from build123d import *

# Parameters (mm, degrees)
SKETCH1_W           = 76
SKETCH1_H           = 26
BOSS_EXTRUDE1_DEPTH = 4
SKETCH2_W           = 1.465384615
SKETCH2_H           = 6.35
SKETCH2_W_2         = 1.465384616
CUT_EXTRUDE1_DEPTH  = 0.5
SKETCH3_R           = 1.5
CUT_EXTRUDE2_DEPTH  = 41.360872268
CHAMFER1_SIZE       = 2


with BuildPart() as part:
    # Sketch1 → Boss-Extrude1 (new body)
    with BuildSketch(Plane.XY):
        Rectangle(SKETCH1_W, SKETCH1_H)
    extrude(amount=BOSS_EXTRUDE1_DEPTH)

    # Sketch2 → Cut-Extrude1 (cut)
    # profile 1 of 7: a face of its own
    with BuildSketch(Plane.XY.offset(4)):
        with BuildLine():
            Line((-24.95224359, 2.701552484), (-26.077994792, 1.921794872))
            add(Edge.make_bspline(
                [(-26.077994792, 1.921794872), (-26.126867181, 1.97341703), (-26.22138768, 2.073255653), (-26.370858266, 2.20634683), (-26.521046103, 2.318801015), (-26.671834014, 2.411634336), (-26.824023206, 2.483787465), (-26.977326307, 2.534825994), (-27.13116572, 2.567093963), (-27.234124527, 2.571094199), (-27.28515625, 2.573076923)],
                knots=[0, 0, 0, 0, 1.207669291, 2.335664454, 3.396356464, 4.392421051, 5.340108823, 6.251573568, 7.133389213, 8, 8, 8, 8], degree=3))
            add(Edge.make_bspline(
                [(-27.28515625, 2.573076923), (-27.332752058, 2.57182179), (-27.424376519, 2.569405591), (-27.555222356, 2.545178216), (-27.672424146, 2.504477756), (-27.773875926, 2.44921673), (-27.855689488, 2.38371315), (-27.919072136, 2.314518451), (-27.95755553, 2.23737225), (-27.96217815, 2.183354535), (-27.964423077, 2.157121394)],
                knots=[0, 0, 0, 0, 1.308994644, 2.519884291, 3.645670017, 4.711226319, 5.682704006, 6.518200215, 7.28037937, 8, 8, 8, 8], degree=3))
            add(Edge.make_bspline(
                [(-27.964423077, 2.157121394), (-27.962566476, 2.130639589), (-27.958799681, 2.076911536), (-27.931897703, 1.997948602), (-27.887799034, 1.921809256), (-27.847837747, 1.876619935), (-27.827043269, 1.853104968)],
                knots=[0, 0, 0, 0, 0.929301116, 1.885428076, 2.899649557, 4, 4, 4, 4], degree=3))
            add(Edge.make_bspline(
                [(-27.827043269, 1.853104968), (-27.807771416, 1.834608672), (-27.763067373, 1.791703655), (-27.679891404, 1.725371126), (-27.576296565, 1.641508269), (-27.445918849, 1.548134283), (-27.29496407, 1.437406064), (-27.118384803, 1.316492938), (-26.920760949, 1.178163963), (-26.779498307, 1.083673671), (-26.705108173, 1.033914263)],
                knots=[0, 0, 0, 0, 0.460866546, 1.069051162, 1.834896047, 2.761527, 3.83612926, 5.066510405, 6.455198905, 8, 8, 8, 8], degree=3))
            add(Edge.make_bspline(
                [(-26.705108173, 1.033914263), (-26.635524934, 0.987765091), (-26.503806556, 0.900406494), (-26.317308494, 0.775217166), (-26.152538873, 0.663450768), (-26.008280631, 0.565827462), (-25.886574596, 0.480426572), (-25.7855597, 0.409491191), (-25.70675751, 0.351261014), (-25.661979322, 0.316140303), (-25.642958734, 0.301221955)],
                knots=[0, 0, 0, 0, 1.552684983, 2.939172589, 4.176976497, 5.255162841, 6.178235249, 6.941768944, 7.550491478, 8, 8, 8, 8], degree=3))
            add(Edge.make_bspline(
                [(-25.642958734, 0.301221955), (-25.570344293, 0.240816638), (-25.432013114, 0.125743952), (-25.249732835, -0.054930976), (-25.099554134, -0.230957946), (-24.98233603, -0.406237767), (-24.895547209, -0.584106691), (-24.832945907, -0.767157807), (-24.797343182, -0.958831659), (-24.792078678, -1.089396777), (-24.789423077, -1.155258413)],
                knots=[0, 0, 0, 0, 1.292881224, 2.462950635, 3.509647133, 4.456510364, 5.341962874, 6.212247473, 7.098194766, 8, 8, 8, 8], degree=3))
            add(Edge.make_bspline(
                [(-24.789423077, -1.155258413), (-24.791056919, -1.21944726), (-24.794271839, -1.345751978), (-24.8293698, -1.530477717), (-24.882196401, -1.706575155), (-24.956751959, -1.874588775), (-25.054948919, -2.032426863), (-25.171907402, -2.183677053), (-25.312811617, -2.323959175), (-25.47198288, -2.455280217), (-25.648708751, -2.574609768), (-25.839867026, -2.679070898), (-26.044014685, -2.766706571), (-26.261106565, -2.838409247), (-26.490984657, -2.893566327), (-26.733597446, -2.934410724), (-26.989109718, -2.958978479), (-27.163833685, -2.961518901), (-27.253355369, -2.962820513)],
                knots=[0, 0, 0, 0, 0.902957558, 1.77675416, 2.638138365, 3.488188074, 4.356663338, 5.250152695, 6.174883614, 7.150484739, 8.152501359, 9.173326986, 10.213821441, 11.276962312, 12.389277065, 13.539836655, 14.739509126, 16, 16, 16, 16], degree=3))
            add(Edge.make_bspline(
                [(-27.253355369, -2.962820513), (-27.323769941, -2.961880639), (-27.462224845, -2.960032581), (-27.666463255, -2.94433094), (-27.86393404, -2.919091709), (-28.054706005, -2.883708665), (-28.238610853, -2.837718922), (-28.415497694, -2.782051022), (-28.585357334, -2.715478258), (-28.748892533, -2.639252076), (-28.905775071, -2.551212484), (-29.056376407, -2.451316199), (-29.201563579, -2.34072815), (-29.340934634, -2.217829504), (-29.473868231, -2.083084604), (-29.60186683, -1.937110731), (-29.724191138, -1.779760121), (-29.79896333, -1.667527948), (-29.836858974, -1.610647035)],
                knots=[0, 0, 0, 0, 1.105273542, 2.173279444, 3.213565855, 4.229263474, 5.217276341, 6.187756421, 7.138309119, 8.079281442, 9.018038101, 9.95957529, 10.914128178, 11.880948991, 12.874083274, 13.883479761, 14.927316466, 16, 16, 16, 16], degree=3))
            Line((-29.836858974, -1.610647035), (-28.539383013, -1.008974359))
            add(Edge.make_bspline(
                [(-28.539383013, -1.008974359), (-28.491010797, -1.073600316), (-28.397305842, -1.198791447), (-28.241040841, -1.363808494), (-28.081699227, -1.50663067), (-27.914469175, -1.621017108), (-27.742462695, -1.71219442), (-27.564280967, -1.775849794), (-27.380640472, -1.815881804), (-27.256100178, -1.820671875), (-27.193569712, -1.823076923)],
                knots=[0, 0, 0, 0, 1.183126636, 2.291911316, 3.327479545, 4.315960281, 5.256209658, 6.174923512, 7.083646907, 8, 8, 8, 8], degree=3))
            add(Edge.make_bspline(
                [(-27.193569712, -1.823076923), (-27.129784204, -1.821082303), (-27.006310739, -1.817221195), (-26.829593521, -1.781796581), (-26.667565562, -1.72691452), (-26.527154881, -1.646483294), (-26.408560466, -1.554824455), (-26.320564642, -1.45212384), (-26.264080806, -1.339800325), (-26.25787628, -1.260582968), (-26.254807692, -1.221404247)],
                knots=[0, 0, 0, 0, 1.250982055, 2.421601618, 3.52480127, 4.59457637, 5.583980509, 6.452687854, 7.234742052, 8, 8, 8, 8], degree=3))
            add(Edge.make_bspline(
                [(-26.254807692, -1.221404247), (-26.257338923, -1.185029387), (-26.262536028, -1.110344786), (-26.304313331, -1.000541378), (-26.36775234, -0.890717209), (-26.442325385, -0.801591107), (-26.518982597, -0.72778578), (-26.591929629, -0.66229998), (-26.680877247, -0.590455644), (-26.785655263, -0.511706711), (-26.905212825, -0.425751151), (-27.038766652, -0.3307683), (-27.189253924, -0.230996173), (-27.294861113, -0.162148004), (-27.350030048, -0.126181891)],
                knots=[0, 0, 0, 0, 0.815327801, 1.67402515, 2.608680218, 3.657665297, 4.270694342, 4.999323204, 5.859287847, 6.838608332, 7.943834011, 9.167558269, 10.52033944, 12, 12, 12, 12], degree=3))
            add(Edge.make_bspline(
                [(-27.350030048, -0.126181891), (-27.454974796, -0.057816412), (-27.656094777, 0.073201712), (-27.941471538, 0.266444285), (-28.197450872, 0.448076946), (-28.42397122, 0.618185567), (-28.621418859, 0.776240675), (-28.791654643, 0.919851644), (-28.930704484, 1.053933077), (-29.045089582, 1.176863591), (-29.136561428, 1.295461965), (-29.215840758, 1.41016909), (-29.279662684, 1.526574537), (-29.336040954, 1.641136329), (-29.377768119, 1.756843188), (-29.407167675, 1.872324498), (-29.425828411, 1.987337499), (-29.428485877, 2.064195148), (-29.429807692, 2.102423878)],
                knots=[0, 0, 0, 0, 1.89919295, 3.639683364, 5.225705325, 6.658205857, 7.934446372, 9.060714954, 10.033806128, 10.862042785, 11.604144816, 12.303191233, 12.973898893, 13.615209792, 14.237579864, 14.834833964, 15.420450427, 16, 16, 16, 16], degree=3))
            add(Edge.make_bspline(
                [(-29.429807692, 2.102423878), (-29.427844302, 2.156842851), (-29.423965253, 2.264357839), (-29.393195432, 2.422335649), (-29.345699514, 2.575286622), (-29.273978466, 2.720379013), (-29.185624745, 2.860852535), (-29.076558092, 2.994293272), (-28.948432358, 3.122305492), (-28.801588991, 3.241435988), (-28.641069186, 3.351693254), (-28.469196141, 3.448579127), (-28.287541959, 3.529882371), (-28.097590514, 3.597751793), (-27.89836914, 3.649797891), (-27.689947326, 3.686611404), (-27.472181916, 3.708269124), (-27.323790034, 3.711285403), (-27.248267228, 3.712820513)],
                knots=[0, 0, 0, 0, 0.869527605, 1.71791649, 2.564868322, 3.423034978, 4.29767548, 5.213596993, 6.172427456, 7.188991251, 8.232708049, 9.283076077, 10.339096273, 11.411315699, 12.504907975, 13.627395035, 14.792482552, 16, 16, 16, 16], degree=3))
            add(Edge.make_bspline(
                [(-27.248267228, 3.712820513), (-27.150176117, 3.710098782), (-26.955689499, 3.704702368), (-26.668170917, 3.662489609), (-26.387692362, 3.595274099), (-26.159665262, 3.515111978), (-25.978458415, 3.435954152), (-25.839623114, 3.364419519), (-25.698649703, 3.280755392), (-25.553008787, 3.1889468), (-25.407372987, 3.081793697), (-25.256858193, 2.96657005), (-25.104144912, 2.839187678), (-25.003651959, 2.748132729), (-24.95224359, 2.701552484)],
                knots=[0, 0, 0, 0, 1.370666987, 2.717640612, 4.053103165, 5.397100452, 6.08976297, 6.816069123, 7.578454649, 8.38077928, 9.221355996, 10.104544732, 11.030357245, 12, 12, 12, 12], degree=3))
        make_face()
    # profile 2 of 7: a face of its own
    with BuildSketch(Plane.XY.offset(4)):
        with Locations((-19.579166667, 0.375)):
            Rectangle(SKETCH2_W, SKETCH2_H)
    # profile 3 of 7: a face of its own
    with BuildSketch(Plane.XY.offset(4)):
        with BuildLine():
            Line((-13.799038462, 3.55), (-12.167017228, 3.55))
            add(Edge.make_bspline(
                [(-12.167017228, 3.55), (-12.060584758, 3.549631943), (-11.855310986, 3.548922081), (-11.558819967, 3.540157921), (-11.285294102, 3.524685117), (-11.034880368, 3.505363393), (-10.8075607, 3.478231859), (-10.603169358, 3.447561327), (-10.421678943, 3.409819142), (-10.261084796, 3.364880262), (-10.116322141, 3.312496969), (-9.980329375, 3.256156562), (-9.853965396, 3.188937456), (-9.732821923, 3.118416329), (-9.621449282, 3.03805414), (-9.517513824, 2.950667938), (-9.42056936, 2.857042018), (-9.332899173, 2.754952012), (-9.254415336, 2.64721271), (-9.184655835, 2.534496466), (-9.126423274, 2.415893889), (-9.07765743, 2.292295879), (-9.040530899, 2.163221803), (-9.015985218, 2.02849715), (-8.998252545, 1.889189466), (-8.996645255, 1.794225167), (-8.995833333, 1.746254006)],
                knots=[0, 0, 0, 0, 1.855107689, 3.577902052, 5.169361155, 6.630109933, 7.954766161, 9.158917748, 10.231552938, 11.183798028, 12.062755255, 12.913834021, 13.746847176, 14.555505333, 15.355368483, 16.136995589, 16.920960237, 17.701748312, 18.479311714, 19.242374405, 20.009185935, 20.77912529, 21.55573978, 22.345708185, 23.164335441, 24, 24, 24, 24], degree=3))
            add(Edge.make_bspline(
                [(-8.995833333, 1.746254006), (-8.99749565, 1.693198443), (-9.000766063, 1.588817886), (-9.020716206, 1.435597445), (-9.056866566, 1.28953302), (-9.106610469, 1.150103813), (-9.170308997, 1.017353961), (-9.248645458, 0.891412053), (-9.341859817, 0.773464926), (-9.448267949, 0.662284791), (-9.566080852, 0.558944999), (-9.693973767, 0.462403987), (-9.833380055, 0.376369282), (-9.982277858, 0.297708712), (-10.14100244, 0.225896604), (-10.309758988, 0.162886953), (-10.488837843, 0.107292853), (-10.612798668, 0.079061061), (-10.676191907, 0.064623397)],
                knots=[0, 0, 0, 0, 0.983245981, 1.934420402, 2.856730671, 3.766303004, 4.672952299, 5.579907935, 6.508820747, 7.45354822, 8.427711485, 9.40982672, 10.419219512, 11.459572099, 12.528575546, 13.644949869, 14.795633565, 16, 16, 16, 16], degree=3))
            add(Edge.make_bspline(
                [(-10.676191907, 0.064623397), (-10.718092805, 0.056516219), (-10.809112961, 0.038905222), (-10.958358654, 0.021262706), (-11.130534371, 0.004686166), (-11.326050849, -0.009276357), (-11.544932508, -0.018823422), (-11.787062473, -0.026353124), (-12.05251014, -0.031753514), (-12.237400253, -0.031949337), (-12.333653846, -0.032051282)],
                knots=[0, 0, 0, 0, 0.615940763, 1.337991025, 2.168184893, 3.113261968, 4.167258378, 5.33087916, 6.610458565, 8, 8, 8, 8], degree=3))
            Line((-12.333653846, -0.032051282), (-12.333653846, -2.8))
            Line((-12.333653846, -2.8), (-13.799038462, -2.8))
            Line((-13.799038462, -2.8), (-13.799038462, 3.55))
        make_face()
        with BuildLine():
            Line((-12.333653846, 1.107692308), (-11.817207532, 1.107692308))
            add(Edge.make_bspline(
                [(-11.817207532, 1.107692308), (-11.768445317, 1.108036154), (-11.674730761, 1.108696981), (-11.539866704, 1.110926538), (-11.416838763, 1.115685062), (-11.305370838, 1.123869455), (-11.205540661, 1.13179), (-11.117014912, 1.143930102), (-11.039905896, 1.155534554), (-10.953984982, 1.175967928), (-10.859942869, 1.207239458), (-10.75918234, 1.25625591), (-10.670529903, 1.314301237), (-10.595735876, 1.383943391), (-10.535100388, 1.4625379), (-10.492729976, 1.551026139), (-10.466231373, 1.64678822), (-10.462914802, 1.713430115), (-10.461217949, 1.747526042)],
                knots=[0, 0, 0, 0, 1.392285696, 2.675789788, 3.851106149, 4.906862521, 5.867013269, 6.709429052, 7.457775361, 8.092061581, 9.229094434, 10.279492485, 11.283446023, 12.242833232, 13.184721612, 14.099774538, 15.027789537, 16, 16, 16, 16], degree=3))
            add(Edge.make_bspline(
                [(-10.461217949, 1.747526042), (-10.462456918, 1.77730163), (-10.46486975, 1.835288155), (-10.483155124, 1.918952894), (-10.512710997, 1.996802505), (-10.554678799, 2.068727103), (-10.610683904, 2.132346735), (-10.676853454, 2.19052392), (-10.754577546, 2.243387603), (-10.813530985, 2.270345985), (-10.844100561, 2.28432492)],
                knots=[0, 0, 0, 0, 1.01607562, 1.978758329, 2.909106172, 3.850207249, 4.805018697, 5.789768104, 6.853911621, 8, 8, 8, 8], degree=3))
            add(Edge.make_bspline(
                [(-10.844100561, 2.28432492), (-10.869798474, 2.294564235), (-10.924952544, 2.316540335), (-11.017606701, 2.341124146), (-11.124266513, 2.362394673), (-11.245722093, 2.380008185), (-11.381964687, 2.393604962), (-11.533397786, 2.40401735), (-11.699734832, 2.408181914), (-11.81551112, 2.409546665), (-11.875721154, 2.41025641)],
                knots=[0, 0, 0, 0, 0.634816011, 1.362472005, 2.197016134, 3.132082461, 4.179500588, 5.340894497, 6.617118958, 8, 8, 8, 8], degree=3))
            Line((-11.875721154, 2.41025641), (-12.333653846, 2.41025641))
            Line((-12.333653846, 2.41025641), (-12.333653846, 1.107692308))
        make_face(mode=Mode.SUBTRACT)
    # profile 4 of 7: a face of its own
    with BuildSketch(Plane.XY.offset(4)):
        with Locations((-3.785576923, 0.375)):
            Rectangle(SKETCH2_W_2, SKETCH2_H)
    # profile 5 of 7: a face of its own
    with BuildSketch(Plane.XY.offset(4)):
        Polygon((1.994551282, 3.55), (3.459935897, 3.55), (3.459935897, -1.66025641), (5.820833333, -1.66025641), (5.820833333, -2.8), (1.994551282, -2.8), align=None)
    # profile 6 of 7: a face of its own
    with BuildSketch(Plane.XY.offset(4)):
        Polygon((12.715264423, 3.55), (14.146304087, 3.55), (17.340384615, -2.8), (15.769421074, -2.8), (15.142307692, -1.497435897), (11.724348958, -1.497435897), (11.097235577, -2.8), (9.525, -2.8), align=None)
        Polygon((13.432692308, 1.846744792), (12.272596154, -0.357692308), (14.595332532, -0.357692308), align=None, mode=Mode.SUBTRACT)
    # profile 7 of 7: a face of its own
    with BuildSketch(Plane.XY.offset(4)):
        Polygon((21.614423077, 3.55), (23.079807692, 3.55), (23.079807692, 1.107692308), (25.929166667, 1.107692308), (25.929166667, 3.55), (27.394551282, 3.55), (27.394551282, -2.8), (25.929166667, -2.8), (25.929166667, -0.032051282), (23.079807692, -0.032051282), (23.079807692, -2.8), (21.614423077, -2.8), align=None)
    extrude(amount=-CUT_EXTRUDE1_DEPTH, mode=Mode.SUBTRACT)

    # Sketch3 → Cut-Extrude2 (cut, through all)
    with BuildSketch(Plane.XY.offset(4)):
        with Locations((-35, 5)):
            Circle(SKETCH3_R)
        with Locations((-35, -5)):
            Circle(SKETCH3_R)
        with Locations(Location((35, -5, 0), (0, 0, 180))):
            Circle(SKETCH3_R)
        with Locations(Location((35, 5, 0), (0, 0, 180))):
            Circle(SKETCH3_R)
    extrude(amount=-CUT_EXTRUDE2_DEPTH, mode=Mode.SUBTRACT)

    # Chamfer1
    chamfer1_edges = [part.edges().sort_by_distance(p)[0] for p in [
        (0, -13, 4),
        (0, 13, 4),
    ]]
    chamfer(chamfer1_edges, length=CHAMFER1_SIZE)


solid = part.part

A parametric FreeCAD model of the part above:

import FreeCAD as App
import Part
import Sketcher
from FreeCAD import Vector


def edges_at(feature, points):
    """Names of the edges that pass closest to the given points."""
    edges = feature.Shape.Edges
    near = lambda p: min(range(len(edges)), key=lambda i: edges[i].distToShape(Part.Vertex(*p))[0])
    return sorted({f"Edge{near(p) + 1}" for p in points})

doc = App.newDocument("Part")
body = doc.addObject("PartDesign::Body", "Body")

sketch1 = body.newObject("Sketcher::SketchObject", "Sketch")
sketch1.AttachmentSupport = (doc.getObject("XY_Plane"), [""])
sketch1.MapMode = "FlatFace"
sketch1.addGeometry([
    Part.LineSegment(Vector(-38, 13, 0), Vector(-38, -13, 0)),
    Part.LineSegment(Vector(-38, -13, 0), Vector(38, -13, 0)),
    Part.LineSegment(Vector(38, -13, 0), Vector(38, 13, 0)),
    Part.LineSegment(Vector(38, 13, 0), Vector(-38, 13, 0)),
], False)
sketch1.addConstraint([
    Sketcher.Constraint("Coincident", 0, 2, 1, 1),
    Sketcher.Constraint("Coincident", 1, 2, 2, 1),
    Sketcher.Constraint("Coincident", 2, 2, 3, 1),
    Sketcher.Constraint("Coincident", 3, 2, 0, 1),
    Sketcher.Constraint("Vertical", 0),
    Sketcher.Constraint("Horizontal", 1),
    Sketcher.Constraint("Vertical", 2),
    Sketcher.Constraint("Horizontal", 3),
    Sketcher.Constraint("Symmetric", 0, 2, 2, 2, -1, 1),
    Sketcher.Constraint("DistanceX", 1, 1, 1, 2, 76.0),
    Sketcher.Constraint("DistanceY", 0, 2, 0, 1, 26.0),
])
pad1 = body.newObject("PartDesign::Pad", "Pad")
pad1.Profile = sketch1
pad1.Length = 4

sketch2 = body.newObject("Sketcher::SketchObject", "Sketch001")
sketch2.AttachmentSupport = (doc.getObject("XY_Plane"), [""])
sketch2.MapMode = "FlatFace"
sketch2.AttachmentOffset = App.Placement(Vector(0, 0, 4), App.Rotation())
sketch2.addGeometry([
    Part.LineSegment(Vector(-26.077995, 1.921795, 0), Vector(-24.952244, 2.701552, 0)),
    Part.BSplineCurve([Vector(-27.248267, 3.712821, 0), Vector(-27.150176, 3.710099, 0), Vector(-26.955689, 3.704702, 0), Vector(-26.668171, 3.66249, 0), Vector(-26.387692, 3.595274, 0), Vector(-26.159665, 3.515112, 0), Vector(-25.978458, 3.435954, 0), Vector(-25.839623, 3.36442, 0), Vector(-25.69865, 3.280755, 0), Vector(-25.553009, 3.188947, 0), Vector(-25.407373, 3.081794, 0), Vector(-25.256858, 2.96657, 0), Vector(-25.104145, 2.839188, 0), Vector(-25.003652, 2.748133, 0), Vector(-24.952244, 2.701552, 0)], [4, 1, 1, 1, 1, 1, 1, 1, 1, 1, 1, 1, 4], [0, 1.370666987, 2.717640612, 4.053103165, 5.397100452, 6.08976297, 6.816069123, 7.578454649, 8.38077928, 9.221355996, 10.104544732, 11.030357245, 12], False, 3, [1, 1, 1, 1, 1, 1, 1, 1, 1, 1, 1, 1, 1, 1, 1], False),
    Part.BSplineCurve([Vector(-29.429808, 2.102424, 0), Vector(-29.427844, 2.156843, 0), Vector(-29.423965, 2.264358, 0), Vector(-29.393195, 2.422336, 0), Vector(-29.3457, 2.575287, 0), Vector(-29.273978, 2.720379, 0), Vector(-29.185625, 2.860853, 0), Vector(-29.076558, 2.994293, 0), Vector(-28.948432, 3.122305, 0), Vector(-28.801589, 3.241436, 0), Vector(-28.641069, 3.351693, 0), Vector(-28.469196, 3.448579, 0), Vector(-28.287542, 3.529882, 0), Vector(-28.097591, 3.597752, 0), Vector(-27.898369, 3.649798, 0), Vector(-27.689947, 3.686611, 0), Vector(-27.472182, 3.708269, 0), Vector(-27.32379, 3.711285, 0), Vector(-27.248267, 3.712821, 0)], [4, 1, 1, 1, 1, 1, 1, 1, 1, 1, 1, 1, 1, 1, 1, 1, 4], [0, 0.869527605, 1.71791649, 2.564868322, 3.423034978, 4.29767548, 5.213596993, 6.172427456, 7.188991251, 8.232708049, 9.283076077, 10.339096273, 11.411315699, 12.504907975, 13.627395035, 14.792482552, 16], False, 3, [1, 1, 1, 1, 1, 1, 1, 1, 1, 1, 1, 1, 1, 1, 1, 1, 1, 1, 1], False),
    Part.BSplineCurve([Vector(-27.35003, -0.126182, 0), Vector(-27.454975, -0.057816, 0), Vector(-27.656095, 0.073202, 0), Vector(-27.941472, 0.266444, 0), Vector(-28.197451, 0.448077, 0), Vector(-28.423971, 0.618186, 0), Vector(-28.621419, 0.776241, 0), Vector(-28.791655, 0.919852, 0), Vector(-28.930704, 1.053933, 0), Vector(-29.04509, 1.176864, 0), Vector(-29.136561, 1.295462, 0), Vector(-29.215841, 1.410169, 0), Vector(-29.279663, 1.526575, 0), Vector(-29.336041, 1.641136, 0), Vector(-29.377768, 1.756843, 0), Vector(-29.407168, 1.872324, 0), Vector(-29.425828, 1.987337, 0), Vector(-29.428486, 2.064195, 0), Vector(-29.429808, 2.102424, 0)], [4, 1, 1, 1, 1, 1, 1, 1, 1, 1, 1, 1, 1, 1, 1, 1, 4], [0, 1.89919295, 3.639683364, 5.225705325, 6.658205857, 7.934446372, 9.060714954, 10.033806128, 10.862042785, 11.604144816, 12.303191233, 12.973898893, 13.615209792, 14.237579864, 14.834833964, 15.420450427, 16], False, 3, [1, 1, 1, 1, 1, 1, 1, 1, 1, 1, 1, 1, 1, 1, 1, 1, 1, 1, 1], False),
    Part.BSplineCurve([Vector(-26.254808, -1.221404, 0), Vector(-26.257339, -1.185029, 0), Vector(-26.262536, -1.110345, 0), Vector(-26.304313, -1.000541, 0), Vector(-26.367752, -0.890717, 0), Vector(-26.442325, -0.801591, 0), Vector(-26.518983, -0.727786, 0), Vector(-26.59193, -0.6623, 0), Vector(-26.680877, -0.590456, 0), Vector(-26.785655, -0.511707, 0), Vector(-26.905213, -0.425751, 0), Vector(-27.038767, -0.330768, 0), Vector(-27.189254, -0.230996, 0), Vector(-27.294861, -0.162148, 0), Vector(-27.35003, -0.126182, 0)], [4, 1, 1, 1, 1, 1, 1, 1, 1, 1, 1, 1, 4], [0, 0.815327801, 1.67402515, 2.608680218, 3.657665297, 4.270694342, 4.999323204, 5.859287847, 6.838608332, 7.943834011, 9.167558269, 10.52033944, 12], False, 3, [1, 1, 1, 1, 1, 1, 1, 1, 1, 1, 1, 1, 1, 1, 1], False),
    Part.BSplineCurve([Vector(-27.19357, -1.823077, 0), Vector(-27.129784, -1.821082, 0), Vector(-27.006311, -1.817221, 0), Vector(-26.829594, -1.781797, 0), Vector(-26.667566, -1.726915, 0), Vector(-26.527155, -1.646483, 0), Vector(-26.40856, -1.554824, 0), Vector(-26.320565, -1.452124, 0), Vector(-26.264081, -1.3398, 0), Vector(-26.257876, -1.260583, 0), Vector(-26.254808, -1.221404, 0)], [4, 1, 1, 1, 1, 1, 1, 1, 4], [0, 1.250982055, 2.421601618, 3.52480127, 4.59457637, 5.583980509, 6.452687854, 7.234742052, 8], False, 3, [1, 1, 1, 1, 1, 1, 1, 1, 1, 1, 1], False),
    Part.BSplineCurve([Vector(-28.539383, -1.008974, 0), Vector(-28.491011, -1.0736, 0), Vector(-28.397306, -1.198791, 0), Vector(-28.241041, -1.363808, 0), Vector(-28.081699, -1.506631, 0), Vector(-27.914469, -1.621017, 0), Vector(-27.742463, -1.712194, 0), Vector(-27.564281, -1.77585, 0), Vector(-27.38064, -1.815882, 0), Vector(-27.2561, -1.820672, 0), Vector(-27.19357, -1.823077, 0)], [4, 1, 1, 1, 1, 1, 1, 1, 4], [0, 1.183126636, 2.291911316, 3.327479545, 4.315960281, 5.256209658, 6.174923512, 7.083646907, 8], False, 3, [1, 1, 1, 1, 1, 1, 1, 1, 1, 1, 1], False),
    Part.LineSegment(Vector(-28.539383, -1.008974, 0), Vector(-29.836859, -1.610647, 0)),
    Part.BSplineCurve([Vector(-27.253355, -2.962821, 0), Vector(-27.32377, -2.961881, 0), Vector(-27.462225, -2.960033, 0), Vector(-27.666463, -2.944331, 0), Vector(-27.863934, -2.919092, 0), Vector(-28.054706, -2.883709, 0), Vector(-28.238611, -2.837719, 0), Vector(-28.415498, -2.782051, 0), Vector(-28.585357, -2.715478, 0), Vector(-28.748893, -2.639252, 0), Vector(-28.905775, -2.551212, 0), Vector(-29.056376, -2.451316, 0), Vector(-29.201564, -2.340728, 0), Vector(-29.340935, -2.21783, 0), Vector(-29.473868, -2.083085, 0), Vector(-29.601867, -1.937111, 0), Vector(-29.724191, -1.77976, 0), Vector(-29.798963, -1.667528, 0), Vector(-29.836859, -1.610647, 0)], [4, 1, 1, 1, 1, 1, 1, 1, 1, 1, 1, 1, 1, 1, 1, 1, 4], [0, 1.105273542, 2.173279444, 3.213565855, 4.229263474, 5.217276341, 6.187756421, 7.138309119, 8.079281442, 9.018038101, 9.95957529, 10.914128178, 11.880948991, 12.874083274, 13.883479761, 14.927316466, 16], False, 3, [1, 1, 1, 1, 1, 1, 1, 1, 1, 1, 1, 1, 1, 1, 1, 1, 1, 1, 1], False),
    Part.BSplineCurve([Vector(-24.789423, -1.155258, 0), Vector(-24.791057, -1.219447, 0), Vector(-24.794272, -1.345752, 0), Vector(-24.82937, -1.530478, 0), Vector(-24.882196, -1.706575, 0), Vector(-24.956752, -1.874589, 0), Vector(-25.054949, -2.032427, 0), Vector(-25.171907, -2.183677, 0), Vector(-25.312812, -2.323959, 0), Vector(-25.471983, -2.45528, 0), Vector(-25.648709, -2.57461, 0), Vector(-25.839867, -2.679071, 0), Vector(-26.044015, -2.766707, 0), Vector(-26.261107, -2.838409, 0), Vector(-26.490985, -2.893566, 0), Vector(-26.733597, -2.934411, 0), Vector(-26.98911, -2.958978, 0), Vector(-27.163834, -2.961519, 0), Vector(-27.253355, -2.962821, 0)], [4, 1, 1, 1, 1, 1, 1, 1, 1, 1, 1, 1, 1, 1, 1, 1, 4], [0, 0.902957558, 1.77675416, 2.638138365, 3.488188074, 4.356663338, 5.250152695, 6.174883614, 7.150484739, 8.152501359, 9.173326986, 10.213821441, 11.276962312, 12.389277065, 13.539836655, 14.739509126, 16], False, 3, [1, 1, 1, 1, 1, 1, 1, 1, 1, 1, 1, 1, 1, 1, 1, 1, 1, 1, 1], False),
    Part.BSplineCurve([Vector(-25.642959, 0.301222, 0), Vector(-25.570344, 0.240817, 0), Vector(-25.432013, 0.125744, 0), Vector(-25.249733, -0.054931, 0), Vector(-25.099554, -0.230958, 0), Vector(-24.982336, -0.406238, 0), Vector(-24.895547, -0.584107, 0), Vector(-24.832946, -0.767158, 0), Vector(-24.797343, -0.958832, 0), Vector(-24.792079, -1.089397, 0), Vector(-24.789423, -1.155258, 0)], [4, 1, 1, 1, 1, 1, 1, 1, 4], [0, 1.292881224, 2.462950635, 3.509647133, 4.456510364, 5.341962874, 6.212247473, 7.098194766, 8], False, 3, [1, 1, 1, 1, 1, 1, 1, 1, 1, 1, 1], False),
    Part.BSplineCurve([Vector(-26.705108, 1.033914, 0), Vector(-26.635525, 0.987765, 0), Vector(-26.503807, 0.900406, 0), Vector(-26.317308, 0.775217, 0), Vector(-26.152539, 0.663451, 0), Vector(-26.008281, 0.565827, 0), Vector(-25.886575, 0.480427, 0), Vector(-25.78556, 0.409491, 0), Vector(-25.706758, 0.351261, 0), Vector(-25.661979, 0.31614, 0), Vector(-25.642959, 0.301222, 0)], [4, 1, 1, 1, 1, 1, 1, 1, 4], [0, 1.552684983, 2.939172589, 4.176976497, 5.255162841, 6.178235249, 6.941768944, 7.550491478, 8], False, 3, [1, 1, 1, 1, 1, 1, 1, 1, 1, 1, 1], False),
    Part.BSplineCurve([Vector(-27.827043, 1.853105, 0), Vector(-27.807771, 1.834609, 0), Vector(-27.763067, 1.791704, 0), Vector(-27.679891, 1.725371, 0), Vector(-27.576297, 1.641508, 0), Vector(-27.445919, 1.548134, 0), Vector(-27.294964, 1.437406, 0), Vector(-27.118385, 1.316493, 0), Vector(-26.920761, 1.178164, 0), Vector(-26.779498, 1.083674, 0), Vector(-26.705108, 1.033914, 0)], [4, 1, 1, 1, 1, 1, 1, 1, 4], [0, 0.460866546, 1.069051162, 1.834896047, 2.761527, 3.83612926, 5.066510405, 6.455198905, 8], False, 3, [1, 1, 1, 1, 1, 1, 1, 1, 1, 1, 1], False),
    Part.BSplineCurve([Vector(-27.964423, 2.157121, 0), Vector(-27.962566, 2.13064, 0), Vector(-27.9588, 2.076912, 0), Vector(-27.931898, 1.997949, 0), Vector(-27.887799, 1.921809, 0), Vector(-27.847838, 1.87662, 0), Vector(-27.827043, 1.853105, 0)], [4, 1, 1, 1, 4], [0, 0.929301116, 1.885428076, 2.899649557, 4], False, 3, [1, 1, 1, 1, 1, 1, 1], False),
    Part.BSplineCurve([Vector(-27.285156, 2.573077, 0), Vector(-27.332752, 2.571822, 0), Vector(-27.424377, 2.569406, 0), Vector(-27.555222, 2.545178, 0), Vector(-27.672424, 2.504478, 0), Vector(-27.773876, 2.449217, 0), Vector(-27.855689, 2.383713, 0), Vector(-27.919072, 2.314518, 0), Vector(-27.957556, 2.237372, 0), Vector(-27.962178, 2.183355, 0), Vector(-27.964423, 2.157121, 0)], [4, 1, 1, 1, 1, 1, 1, 1, 4], [0, 1.308994644, 2.519884291, 3.645670017, 4.711226319, 5.682704006, 6.518200215, 7.28037937, 8], False, 3, [1, 1, 1, 1, 1, 1, 1, 1, 1, 1, 1], False),
    Part.BSplineCurve([Vector(-26.077995, 1.921795, 0), Vector(-26.126867, 1.973417, 0), Vector(-26.221388, 2.073256, 0), Vector(-26.370858, 2.206347, 0), Vector(-26.521046, 2.318801, 0), Vector(-26.671834, 2.411634, 0), Vector(-26.824023, 2.483787, 0), Vector(-26.977326, 2.534826, 0), Vector(-27.131166, 2.567094, 0), Vector(-27.234125, 2.571094, 0), Vector(-27.285156, 2.573077, 0)], [4, 1, 1, 1, 1, 1, 1, 1, 4], [0, 1.207669291, 2.335664454, 3.396356464, 4.392421051, 5.340108823, 6.251573568, 7.133389213, 8], False, 3, [1, 1, 1, 1, 1, 1, 1, 1, 1, 1, 1], False),
    Part.LineSegment(Vector(-20.311859, 3.55, 0), Vector(-20.311859, -2.8, 0)),
    Part.LineSegment(Vector(-20.311859, -2.8, 0), Vector(-18.846474, -2.8, 0)),
    Part.LineSegment(Vector(-18.846474, -2.8, 0), Vector(-18.846474, 3.55, 0)),
    Part.LineSegment(Vector(-18.846474, 3.55, 0), Vector(-20.311859, 3.55, 0)),
    Part.LineSegment(Vector(-12.167017, 3.55, 0), Vector(-13.799038, 3.55, 0)),
    Part.LineSegment(Vector(-13.799038, 3.55, 0), Vector(-13.799038, -2.8, 0)),
    Part.LineSegment(Vector(-13.799038, -2.8, 0), Vector(-12.333654, -2.8, 0)),
    Part.LineSegment(Vector(-12.333654, -2.8, 0), Vector(-12.333654, -0.032051, 0)),
    Part.BSplineCurve([Vector(-10.676192, 0.064623, 0), Vector(-10.718093, 0.056516, 0), Vector(-10.809113, 0.038905, 0), Vector(-10.958359, 0.021263, 0), Vector(-11.130534, 0.004686, 0), Vector(-11.326051, -0.009276, 0), Vector(-11.544933, -0.018823, 0), Vector(-11.787062, -0.026353, 0), Vector(-12.05251, -0.031754, 0), Vector(-12.2374, -0.031949, 0), Vector(-12.333654, -0.032051, 0)], [4, 1, 1, 1, 1, 1, 1, 1, 4], [0, 0.615940763, 1.337991025, 2.168184893, 3.113261968, 4.167258378, 5.33087916, 6.610458565, 8], False, 3, [1, 1, 1, 1, 1, 1, 1, 1, 1, 1, 1], False),
    Part.BSplineCurve([Vector(-8.995833, 1.746254, 0), Vector(-8.997496, 1.693198, 0), Vector(-9.000766, 1.588818, 0), Vector(-9.020716, 1.435597, 0), Vector(-9.056867, 1.289533, 0), Vector(-9.10661, 1.150104, 0), Vector(-9.170309, 1.017354, 0), Vector(-9.248645, 0.891412, 0), Vector(-9.34186, 0.773465, 0), Vector(-9.448268, 0.662285, 0), Vector(-9.566081, 0.558945, 0), Vector(-9.693974, 0.462404, 0), Vector(-9.83338, 0.376369, 0), Vector(-9.982278, 0.297709, 0), Vector(-10.141002, 0.225897, 0), Vector(-10.309759, 0.162887, 0), Vector(-10.488838, 0.107293, 0), Vector(-10.612799, 0.079061, 0), Vector(-10.676192, 0.064623, 0)], [4, 1, 1, 1, 1, 1, 1, 1, 1, 1, 1, 1, 1, 1, 1, 1, 4], [0, 0.983245981, 1.934420402, 2.856730671, 3.766303004, 4.672952299, 5.579907935, 6.508820747, 7.45354822, 8.427711485, 9.40982672, 10.419219512, 11.459572099, 12.528575546, 13.644949869, 14.795633565, 16], False, 3, [1, 1, 1, 1, 1, 1, 1, 1, 1, 1, 1, 1, 1, 1, 1, 1, 1, 1, 1], False),
    Part.BSplineCurve([Vector(-12.167017, 3.55, 0), Vector(-12.060585, 3.549632, 0), Vector(-11.855311, 3.548922, 0), Vector(-11.55882, 3.540158, 0), Vector(-11.285294, 3.524685, 0), Vector(-11.03488, 3.505363, 0), Vector(-10.807561, 3.478232, 0), Vector(-10.603169, 3.447561, 0), Vector(-10.421679, 3.409819, 0), Vector(-10.261085, 3.36488, 0), Vector(-10.116322, 3.312497, 0), Vector(-9.980329, 3.256157, 0), Vector(-9.853965, 3.188937, 0), Vector(-9.732822, 3.118416, 0), Vector(-9.621449, 3.038054, 0), Vector(-9.517514, 2.950668, 0), Vector(-9.420569, 2.857042, 0), Vector(-9.332899, 2.754952, 0), Vector(-9.254415, 2.647213, 0), Vector(-9.184656, 2.534496, 0), Vector(-9.126423, 2.415894, 0), Vector(-9.077657, 2.292296, 0), Vector(-9.040531, 2.163222, 0), Vector(-9.015985, 2.028497, 0), Vector(-8.998253, 1.889189, 0), Vector(-8.996645, 1.794225, 0), Vector(-8.995833, 1.746254, 0)], [4, 1, 1, 1, 1, 1, 1, 1, 1, 1, 1, 1, 1, 1, 1, 1, 1, 1, 1, 1, 1, 1, 1, 1, 4], [0, 1.855107689, 3.577902052, 5.169361155, 6.630109933, 7.954766161, 9.158917748, 10.231552938, 11.183798028, 12.062755255, 12.913834021, 13.746847176, 14.555505333, 15.355368483, 16.136995589, 16.920960237, 17.701748312, 18.479311714, 19.242374405, 20.009185935, 20.77912529, 21.55573978, 22.345708185, 23.164335441, 24], False, 3, [1, 1, 1, 1, 1, 1, 1, 1, 1, 1, 1, 1, 1, 1, 1, 1, 1, 1, 1, 1, 1, 1, 1, 1, 1, 1, 1], False),
    Part.LineSegment(Vector(-12.333654, 1.107692, 0), Vector(-12.333654, 2.410256, 0)),
    Part.LineSegment(Vector(-12.333654, 2.410256, 0), Vector(-11.875721, 2.410256, 0)),
    Part.BSplineCurve([Vector(-10.844101, 2.284325, 0), Vector(-10.869798, 2.294564, 0), Vector(-10.924953, 2.31654, 0), Vector(-11.017607, 2.341124, 0), Vector(-11.124267, 2.362395, 0), Vector(-11.245722, 2.380008, 0), Vector(-11.381965, 2.393605, 0), Vector(-11.533398, 2.404017, 0), Vector(-11.699735, 2.408182, 0), Vector(-11.815511, 2.409547, 0), Vector(-11.875721, 2.410256, 0)], [4, 1, 1, 1, 1, 1, 1, 1, 4], [0, 0.634816011, 1.362472005, 2.197016134, 3.132082461, 4.179500588, 5.340894497, 6.617118958, 8], False, 3, [1, 1, 1, 1, 1, 1, 1, 1, 1, 1, 1], False),
    Part.BSplineCurve([Vector(-10.461218, 1.747526, 0), Vector(-10.462457, 1.777302, 0), Vector(-10.46487, 1.835288, 0), Vector(-10.483155, 1.918953, 0), Vector(-10.512711, 1.996803, 0), Vector(-10.554679, 2.068727, 0), Vector(-10.610684, 2.132347, 0), Vector(-10.676853, 2.190524, 0), Vector(-10.754578, 2.243388, 0), Vector(-10.813531, 2.270346, 0), Vector(-10.844101, 2.284325, 0)], [4, 1, 1, 1, 1, 1, 1, 1, 4], [0, 1.01607562, 1.978758329, 2.909106172, 3.850207249, 4.805018697, 5.789768104, 6.853911621, 8], False, 3, [1, 1, 1, 1, 1, 1, 1, 1, 1, 1, 1], False),
    Part.BSplineCurve([Vector(-11.817208, 1.107692, 0), Vector(-11.768445, 1.108036, 0), Vector(-11.674731, 1.108697, 0), Vector(-11.539867, 1.110927, 0), Vector(-11.416839, 1.115685, 0), Vector(-11.305371, 1.123869, 0), Vector(-11.205541, 1.13179, 0), Vector(-11.117015, 1.14393, 0), Vector(-11.039906, 1.155535, 0), Vector(-10.953985, 1.175968, 0), Vector(-10.859943, 1.207239, 0), Vector(-10.759182, 1.256256, 0), Vector(-10.67053, 1.314301, 0), Vector(-10.595736, 1.383943, 0), Vector(-10.5351, 1.462538, 0), Vector(-10.49273, 1.551026, 0), Vector(-10.466231, 1.646788, 0), Vector(-10.462915, 1.71343, 0), Vector(-10.461218, 1.747526, 0)], [4, 1, 1, 1, 1, 1, 1, 1, 1, 1, 1, 1, 1, 1, 1, 1, 4], [0, 1.392285696, 2.675789788, 3.851106149, 4.906862521, 5.867013269, 6.709429052, 7.457775361, 8.092061581, 9.229094434, 10.279492485, 11.283446023, 12.242833232, 13.184721612, 14.099774538, 15.027789537, 16], False, 3, [1, 1, 1, 1, 1, 1, 1, 1, 1, 1, 1, 1, 1, 1, 1, 1, 1, 1, 1], False),
    Part.LineSegment(Vector(-11.817208, 1.107692, 0), Vector(-12.333654, 1.107692, 0)),
    Part.LineSegment(Vector(-4.518269, 3.55, 0), Vector(-4.518269, -2.8, 0)),
    Part.LineSegment(Vector(-4.518269, -2.8, 0), Vector(-3.052885, -2.8, 0)),
    Part.LineSegment(Vector(-3.052885, -2.8, 0), Vector(-3.052885, 3.55, 0)),
    Part.LineSegment(Vector(-3.052885, 3.55, 0), Vector(-4.518269, 3.55, 0)),
    Part.LineSegment(Vector(3.459936, 3.55, 0), Vector(1.994551, 3.55, 0)),
    Part.LineSegment(Vector(1.994551, 3.55, 0), Vector(1.994551, -2.8, 0)),
    Part.LineSegment(Vector(1.994551, -2.8, 0), Vector(5.820833, -2.8, 0)),
    Part.LineSegment(Vector(5.820833, -2.8, 0), Vector(5.820833, -1.660256, 0)),
    Part.LineSegment(Vector(5.820833, -1.660256, 0), Vector(3.459936, -1.660256, 0)),
    Part.LineSegment(Vector(3.459936, -1.660256, 0), Vector(3.459936, 3.55, 0)),
    Part.LineSegment(Vector(14.146304, 3.55, 0), Vector(12.715264, 3.55, 0)),
    Part.LineSegment(Vector(12.715264, 3.55, 0), Vector(9.525, -2.8, 0)),
    Part.LineSegment(Vector(9.525, -2.8, 0), Vector(11.097236, -2.8, 0)),
    Part.LineSegment(Vector(11.097236, -2.8, 0), Vector(11.724349, -1.497436, 0)),
    Part.LineSegment(Vector(11.724349, -1.497436, 0), Vector(15.142308, -1.497436, 0)),
    Part.LineSegment(Vector(15.142308, -1.497436, 0), Vector(15.769421, -2.8, 0)),
    Part.LineSegment(Vector(15.769421, -2.8, 0), Vector(17.340385, -2.8, 0)),
    Part.LineSegment(Vector(17.340385, -2.8, 0), Vector(14.146304, 3.55, 0)),
    Part.LineSegment(Vector(13.432692, 1.846745, 0), Vector(14.595333, -0.357692, 0)),
    Part.LineSegment(Vector(14.595333, -0.357692, 0), Vector(12.272596, -0.357692, 0)),
    Part.LineSegment(Vector(12.272596, -0.357692, 0), Vector(13.432692, 1.846745, 0)),
    Part.LineSegment(Vector(23.079808, 3.55, 0), Vector(21.614423, 3.55, 0)),
    Part.LineSegment(Vector(21.614423, 3.55, 0), Vector(21.614423, -2.8, 0)),
    Part.LineSegment(Vector(21.614423, -2.8, 0), Vector(23.079808, -2.8, 0)),
    Part.LineSegment(Vector(23.079808, -2.8, 0), Vector(23.079808, -0.032051, 0)),
    Part.LineSegment(Vector(23.079808, -0.032051, 0), Vector(25.929167, -0.032051, 0)),
    Part.LineSegment(Vector(25.929167, -0.032051, 0), Vector(25.929167, -2.8, 0)),
    Part.LineSegment(Vector(25.929167, -2.8, 0), Vector(27.394551, -2.8, 0)),
    Part.LineSegment(Vector(27.394551, -2.8, 0), Vector(27.394551, 3.55, 0)),
    Part.LineSegment(Vector(27.394551, 3.55, 0), Vector(25.929167, 3.55, 0)),
    Part.LineSegment(Vector(25.929167, 3.55, 0), Vector(25.929167, 1.107692, 0)),
    Part.LineSegment(Vector(25.929167, 1.107692, 0), Vector(23.079808, 1.107692, 0)),
    Part.LineSegment(Vector(23.079808, 1.107692, 0), Vector(23.079808, 3.55, 0)),
], False)
sketch2.addConstraint([
    Sketcher.Constraint("Block", 1),
    Sketcher.Constraint("Block", 2),
    Sketcher.Constraint("Block", 3),
    Sketcher.Constraint("Block", 4),
    Sketcher.Constraint("Block", 5),
    Sketcher.Constraint("Block", 6),
    Sketcher.Constraint("Block", 8),
    Sketcher.Constraint("Block", 9),
    Sketcher.Constraint("Block", 10),
    Sketcher.Constraint("Block", 11),
    Sketcher.Constraint("Block", 12),
    Sketcher.Constraint("Block", 13),
    Sketcher.Constraint("Block", 14),
    Sketcher.Constraint("Block", 15),
    Sketcher.Constraint("Block", 24),
    Sketcher.Constraint("Block", 25),
    Sketcher.Constraint("Block", 26),
    Sketcher.Constraint("Block", 29),
    Sketcher.Constraint("Block", 30),
    Sketcher.Constraint("Block", 31),
    Sketcher.Constraint("Coincident", 0, 2, 1, 2),
    Sketcher.Constraint("Coincident", 6, 1, 7, 1),
    Sketcher.Constraint("Coincident", 7, 2, 8, 2),
    Sketcher.Constraint("Coincident", 15, 1, 0, 1),
    Sketcher.Constraint("Coincident", 16, 2, 17, 1),
    Sketcher.Constraint("Coincident", 17, 2, 18, 1),
    Sketcher.Constraint("Coincident", 18, 2, 19, 1),
    Sketcher.Constraint("Coincident", 19, 2, 16, 1),
    Sketcher.Constraint("Coincident", 20, 2, 21, 1),
    Sketcher.Constraint("Coincident", 21, 2, 22, 1),
    Sketcher.Constraint("Coincident", 22, 2, 23, 1),
    Sketcher.Constraint("Coincident", 23, 2, 24, 2),
    Sketcher.Constraint("Coincident", 26, 1, 20, 1),
    Sketcher.Constraint("Coincident", 27, 2, 28, 1),
    Sketcher.Constraint("Coincident", 28, 2, 29, 2),
    Sketcher.Constraint("Coincident", 31, 1, 32, 1),
    Sketcher.Constraint("Coincident", 32, 2, 27, 1),
    Sketcher.Constraint("Coincident", 33, 2, 34, 1),
    Sketcher.Constraint("Coincident", 34, 2, 35, 1),
    Sketcher.Constraint("Coincident", 35, 2, 36, 1),
    Sketcher.Constraint("Coincident", 36, 2, 33, 1),
    Sketcher.Constraint("Coincident", 37, 2, 38, 1),
    Sketcher.Constraint("Coincident", 38, 2, 39, 1),
    Sketcher.Constraint("Coincident", 39, 2, 40, 1),
    Sketcher.Constraint("Coincident", 40, 2, 41, 1),
    Sketcher.Constraint("Coincident", 41, 2, 42, 1),
    Sketcher.Constraint("Coincident", 42, 2, 37, 1),
    Sketcher.Constraint("Coincident", 43, 2, 44, 1),
    Sketcher.Constraint("Coincident", 44, 2, 45, 1),
    Sketcher.Constraint("Coincident", 45, 2, 46, 1),
    Sketcher.Constraint("Coincident", 46, 2, 47, 1),
    Sketcher.Constraint("Coincident", 47, 2, 48, 1),
    Sketcher.Constraint("Coincident", 48, 2, 49, 1),
    Sketcher.Constraint("Coincident", 49, 2, 50, 1),
    Sketcher.Constraint("Coincident", 50, 2, 43, 1),
    Sketcher.Constraint("Coincident", 51, 2, 52, 1),
    Sketcher.Constraint("Coincident", 52, 2, 53, 1),
    Sketcher.Constraint("Coincident", 53, 2, 51, 1),
    Sketcher.Constraint("Coincident", 54, 2, 55, 1),
    Sketcher.Constraint("Coincident", 55, 2, 56, 1),
    Sketcher.Constraint("Coincident", 56, 2, 57, 1),
    Sketcher.Constraint("Coincident", 57, 2, 58, 1),
    Sketcher.Constraint("Coincident", 58, 2, 59, 1),
    Sketcher.Constraint("Coincident", 59, 2, 60, 1),
    Sketcher.Constraint("Coincident", 60, 2, 61, 1),
    Sketcher.Constraint("Coincident", 61, 2, 62, 1),
    Sketcher.Constraint("Coincident", 62, 2, 63, 1),
    Sketcher.Constraint("Coincident", 63, 2, 64, 1),
    Sketcher.Constraint("Coincident", 64, 2, 65, 1),
    Sketcher.Constraint("Coincident", 65, 2, 54, 1),
    Sketcher.Constraint("Vertical", 16),
    Sketcher.Constraint("Horizontal", 17),
    Sketcher.Constraint("Vertical", 18),
    Sketcher.Constraint("Horizontal", 19),
    Sketcher.Constraint("Horizontal", 20),
    Sketcher.Constraint("Vertical", 21),
    Sketcher.Constraint("Horizontal", 22),
    Sketcher.Constraint("Vertical", 23),
    Sketcher.Constraint("Vertical", 27),
    Sketcher.Constraint("Horizontal", 28),
    Sketcher.Constraint("Horizontal", 32),
    Sketcher.Constraint("Vertical", 33),
    Sketcher.Constraint("Horizontal", 34),
    Sketcher.Constraint("Vertical", 35),
    Sketcher.Constraint("Horizontal", 36),
    Sketcher.Constraint("Horizontal", 37),
    Sketcher.Constraint("Vertical", 38),
    Sketcher.Constraint("Horizontal", 39),
    Sketcher.Constraint("Vertical", 40),
    Sketcher.Constraint("Horizontal", 41),
    Sketcher.Constraint("Vertical", 42),
    Sketcher.Constraint("Horizontal", 43),
    Sketcher.Constraint("Horizontal", 45),
    Sketcher.Constraint("Horizontal", 47),
    Sketcher.Constraint("Horizontal", 49),
    Sketcher.Constraint("Horizontal", 52),
    Sketcher.Constraint("Horizontal", 54),
    Sketcher.Constraint("Vertical", 55),
    Sketcher.Constraint("Horizontal", 56),
    Sketcher.Constraint("Vertical", 57),
    Sketcher.Constraint("Horizontal", 58),
    Sketcher.Constraint("Vertical", 59),
    Sketcher.Constraint("Horizontal", 60),
    Sketcher.Constraint("Vertical", 61),
    Sketcher.Constraint("Horizontal", 62),
    Sketcher.Constraint("Vertical", 63),
    Sketcher.Constraint("Horizontal", 64),
    Sketcher.Constraint("Vertical", 65),
    Sketcher.Constraint("DistanceY", 16, 2, 16, 1, 6.35),
    Sketcher.Constraint("DistanceY", 21, 2, 21, 1, 6.35),
    Sketcher.Constraint("DistanceY", 33, 2, 33, 1, 6.35),
    Sketcher.Constraint("DistanceY", 38, 2, 38, 1, 6.35),
    Sketcher.Constraint("DistanceY", 55, 2, 55, 1, 6.35),
    Sketcher.Constraint("DistanceY", 61, 1, 61, 2, 6.35),
    Sketcher.Constraint("DistanceY", 16, 2, -1, 1, 2.8),
    Sketcher.Constraint("DistanceY", 33, 2, -1, 1, 2.8),
    Sketcher.Constraint("DistanceY", 38, 2, -1, 1, 2.8),
    Sketcher.Constraint("DistanceY", 44, 2, -1, 1, 2.8),
    Sketcher.Constraint("DistanceY", 48, 2, -1, 1, 2.8),
    Sketcher.Constraint("DistanceY", 55, 2, -1, 1, 2.8),
    Sketcher.Constraint("DistanceY", 59, 2, -1, 1, 2.8),
    Sketcher.Constraint("DistanceY", -1, 1, 43, 2, 3.55),
    Sketcher.Constraint("DistanceX", -1, 1, 44, 2, 9.525),
    Sketcher.Constraint("DistanceX", 7, 2, 16, 2, 9.525),
    Sketcher.Constraint("DistanceX", 20, 2, 20, 1, 1.632021),
    Sketcher.Constraint("DistanceX", 43, 2, 43, 1, 1.43104),
    Sketcher.Constraint("DistanceX", 47, 1, 47, 2, 3.417959),
    Sketcher.Constraint("DistanceX", 58, 1, 58, 2, 2.849359),
    Sketcher.Constraint("DistanceX", 64, 2, 64, 1, 2.849359),
    Sketcher.Constraint("DistanceY", 57, 1, 57, 2, 2.767949),
    Sketcher.Constraint("DistanceX", 41, 2, 45, 2, 7.6373),
    Sketcher.Constraint("DistanceX", 47, 2, 56, 2, 7.9375),
    Sketcher.Constraint("Distance", 50, 7.108069),
    Sketcher.Constraint("DistanceX", 17, 1, 17, 2, 1.465385),
    Sketcher.Constraint("DistanceX", 28, 1, 28, 2, 0.457933),
    Sketcher.Constraint("DistanceX", 34, 1, 34, 2, 1.465385),
    Sketcher.Constraint("DistanceX", 37, 2, 37, 1, 1.465385),
    Sketcher.Constraint("DistanceX", 39, 1, 39, 2, 3.826282),
    Sketcher.Constraint("DistanceX", 45, 1, 45, 2, 1.572236),
    Sketcher.Constraint("DistanceX", 49, 1, 49, 2, 1.570964),
    Sketcher.Constraint("DistanceX", 52, 2, 52, 1, 2.322736),
    Sketcher.Constraint("DistanceX", 54, 2, 54, 1, 1.465385),
    Sketcher.Constraint("DistanceX", 56, 1, 56, 2, 1.465385),
    Sketcher.Constraint("DistanceX", 60, 1, 60, 2, 1.465385),
    Sketcher.Constraint("DistanceY", 40, 1, 40, 2, 1.139744),
    Sketcher.Constraint("DistanceY", 63, 2, 63, 1, 2.442308),
    Sketcher.Constraint("DistanceX", 33, 2, -1, 1, 4.518269),
    Sketcher.Constraint("DistanceX", -1, 1, 46, 2, 11.724349),
    Sketcher.Constraint("DistanceX", -1, 1, 48, 2, 15.769421),
    Sketcher.Constraint("DistanceY", 40, 2, 46, 2, 0.162821),
    Sketcher.Constraint("DistanceX", 51, 2, 48, 2, 1.174089),
    Sketcher.Constraint("DistanceX", 53, 2, 50, 2, 0.713612),
    Sketcher.Constraint("DistanceY", 46, 2, 53, 2, 3.344181),
    Sketcher.Constraint("Distance", 51, 2.492243),
])
pocket1 = body.newObject("PartDesign::Pocket", "Pocket")
pocket1.Profile = sketch2
pocket1.Length = 0.5

sketch3 = body.newObject("Sketcher::SketchObject", "Sketch002")
sketch3.AttachmentSupport = (doc.getObject("XY_Plane"), [""])
sketch3.MapMode = "FlatFace"
sketch3.AttachmentOffset = App.Placement(Vector(0, 0, 4), App.Rotation())
sketch3.addGeometry([
    Part.Circle(Vector(-35, 5, 0), Vector(0, 0, 1), 1.5),
    Part.Circle(Vector(-35, -5, 0), Vector(0, 0, 1), 1.5),
    Part.Circle(Vector(35, -5, 0), Vector(0, 0, 1), 1.5),
    Part.Circle(Vector(35, 5, 0), Vector(0, 0, 1), 1.5),
], False)
sketch3.addConstraint([
    Sketcher.Constraint("Equal", 0, 1),
    Sketcher.Constraint("Equal", 1, 2),
    Sketcher.Constraint("Equal", 2, 3),
    Sketcher.Constraint("Symmetric", 0, 3, 2, 3, -1, 1),
    Sketcher.Constraint("Symmetric", 1, 3, 3, 3, -1, 1),
    Sketcher.Constraint("Symmetric", 1, 3, 2, 3, -2),
    Sketcher.Constraint("Diameter", 0, 3.0),
    Sketcher.Constraint("DistanceX", 0, 3, -1, 1, 35.0),
    Sketcher.Constraint("DistanceY", -1, 1, 0, 3, 5.0),
])
pocket2 = body.newObject("PartDesign::Pocket", "Pocket001")
pocket2.Profile = sketch3
pocket2.Type = "ThroughAll"
doc.recompute()

chamfer = body.newObject("PartDesign::Chamfer", "Chamfer")
chamfer.Base = (pocket2, edges_at(pocket2, [(0, -13, 4), (0, 13, 4)]))
chamfer.Size = 2

doc.recompute()
